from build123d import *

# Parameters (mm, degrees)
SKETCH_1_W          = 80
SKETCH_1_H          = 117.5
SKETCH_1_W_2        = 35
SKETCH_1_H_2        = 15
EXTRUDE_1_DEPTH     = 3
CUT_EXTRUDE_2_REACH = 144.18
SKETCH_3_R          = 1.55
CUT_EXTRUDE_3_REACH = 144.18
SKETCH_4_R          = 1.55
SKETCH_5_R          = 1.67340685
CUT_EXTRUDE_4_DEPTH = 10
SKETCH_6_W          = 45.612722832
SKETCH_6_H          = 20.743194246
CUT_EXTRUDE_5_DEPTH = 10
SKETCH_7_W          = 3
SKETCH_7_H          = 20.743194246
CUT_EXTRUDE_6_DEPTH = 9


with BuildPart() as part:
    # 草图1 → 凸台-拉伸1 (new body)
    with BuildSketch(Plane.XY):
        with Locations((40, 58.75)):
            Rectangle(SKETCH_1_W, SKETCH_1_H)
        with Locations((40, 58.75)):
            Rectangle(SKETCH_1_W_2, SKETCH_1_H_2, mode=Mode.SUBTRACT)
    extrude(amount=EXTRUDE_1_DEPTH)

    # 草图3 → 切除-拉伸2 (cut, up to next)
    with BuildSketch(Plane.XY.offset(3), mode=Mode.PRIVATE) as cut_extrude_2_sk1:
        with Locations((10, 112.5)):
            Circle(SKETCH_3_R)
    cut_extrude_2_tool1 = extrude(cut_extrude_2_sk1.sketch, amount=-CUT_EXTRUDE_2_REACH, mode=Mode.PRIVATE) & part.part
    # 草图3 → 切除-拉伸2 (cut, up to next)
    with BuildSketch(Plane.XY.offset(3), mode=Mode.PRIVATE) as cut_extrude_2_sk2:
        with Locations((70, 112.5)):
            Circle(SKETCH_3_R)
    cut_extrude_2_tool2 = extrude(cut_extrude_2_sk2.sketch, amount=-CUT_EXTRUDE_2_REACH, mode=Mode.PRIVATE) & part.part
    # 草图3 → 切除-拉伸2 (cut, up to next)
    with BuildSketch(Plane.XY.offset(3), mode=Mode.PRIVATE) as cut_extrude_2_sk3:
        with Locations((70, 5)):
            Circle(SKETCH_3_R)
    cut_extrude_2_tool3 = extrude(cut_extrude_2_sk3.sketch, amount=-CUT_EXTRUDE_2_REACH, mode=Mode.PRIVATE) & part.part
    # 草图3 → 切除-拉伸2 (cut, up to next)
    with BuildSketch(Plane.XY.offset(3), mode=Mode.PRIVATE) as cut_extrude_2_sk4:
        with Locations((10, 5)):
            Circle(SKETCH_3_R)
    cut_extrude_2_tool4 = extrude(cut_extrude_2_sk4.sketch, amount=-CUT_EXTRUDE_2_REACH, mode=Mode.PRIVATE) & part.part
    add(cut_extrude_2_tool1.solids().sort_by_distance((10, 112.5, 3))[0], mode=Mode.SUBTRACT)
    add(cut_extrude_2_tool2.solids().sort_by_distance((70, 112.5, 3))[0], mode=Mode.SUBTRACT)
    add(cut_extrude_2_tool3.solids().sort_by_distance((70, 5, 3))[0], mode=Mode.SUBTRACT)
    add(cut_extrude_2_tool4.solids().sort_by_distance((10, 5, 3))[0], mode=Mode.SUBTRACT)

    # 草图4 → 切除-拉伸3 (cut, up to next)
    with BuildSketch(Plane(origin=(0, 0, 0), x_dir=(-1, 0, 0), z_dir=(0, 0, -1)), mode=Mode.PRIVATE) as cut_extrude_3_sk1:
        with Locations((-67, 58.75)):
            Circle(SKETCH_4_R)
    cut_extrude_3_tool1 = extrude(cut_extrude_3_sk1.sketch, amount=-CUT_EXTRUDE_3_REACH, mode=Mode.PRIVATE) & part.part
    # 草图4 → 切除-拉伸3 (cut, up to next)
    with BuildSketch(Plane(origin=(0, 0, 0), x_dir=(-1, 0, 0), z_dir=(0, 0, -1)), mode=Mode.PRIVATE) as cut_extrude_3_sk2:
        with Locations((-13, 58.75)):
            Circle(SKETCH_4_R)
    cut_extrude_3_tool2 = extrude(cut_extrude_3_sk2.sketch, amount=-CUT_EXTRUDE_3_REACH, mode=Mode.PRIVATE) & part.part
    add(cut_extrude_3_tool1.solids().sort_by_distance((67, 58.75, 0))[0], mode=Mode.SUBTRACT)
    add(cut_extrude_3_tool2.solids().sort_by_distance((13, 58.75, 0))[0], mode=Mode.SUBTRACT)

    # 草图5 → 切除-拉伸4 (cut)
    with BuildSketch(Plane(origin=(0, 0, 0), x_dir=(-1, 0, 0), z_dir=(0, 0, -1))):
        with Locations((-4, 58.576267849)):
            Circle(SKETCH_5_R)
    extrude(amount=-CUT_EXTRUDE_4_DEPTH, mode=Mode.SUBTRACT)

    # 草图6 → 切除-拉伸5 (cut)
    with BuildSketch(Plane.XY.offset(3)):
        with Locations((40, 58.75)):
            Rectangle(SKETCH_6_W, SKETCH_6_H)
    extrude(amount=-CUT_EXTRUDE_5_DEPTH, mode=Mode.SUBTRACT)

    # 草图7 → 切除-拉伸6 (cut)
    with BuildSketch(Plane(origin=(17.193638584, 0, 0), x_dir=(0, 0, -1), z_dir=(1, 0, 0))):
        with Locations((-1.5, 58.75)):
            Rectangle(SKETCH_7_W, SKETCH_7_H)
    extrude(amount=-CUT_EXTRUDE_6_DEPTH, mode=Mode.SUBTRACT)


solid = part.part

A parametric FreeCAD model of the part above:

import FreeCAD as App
import Part
import Sketcher
Q = App.Units.Quantity


def add_polygon(sketch, points):
    """Adds a closed chain of lines whose ends are joined by coincident constraints."""
    first, n = sketch.GeometryCount, len(points)
    for a, b in zip(points, points[1:] + points[:1]):
        sketch.addGeometry(Part.LineSegment(App.Vector(*a, 0), App.Vector(*b, 0)), False)
    for i in range(n):
        sketch.addConstraint(Sketcher.Constraint("Coincident", first + i, 2, first + (i + 1) % n, 1))

doc = App.newDocument("Part")
body = doc.addObject("PartDesign::Body", "Body")

sketch1 = body.newObject("Sketcher::SketchObject", "Sketch")
sketch1.AttachmentSupport = (doc.getObject("XY_Plane"), [""])
sketch1.MapMode = "FlatFace"
add_polygon(sketch1, [(0, 118), (0, 0), (80, 0), (80, 118)])
add_polygon(sketch1, [(58, 51), (22, 51), (22, 66), (58, 66)])
sketch1.addConstraint([
    Sketcher.Constraint("Vertical", 0),
    Sketcher.Constraint("Horizontal", 1),
    Sketcher.Constraint("Vertical", 2),
    Sketcher.Constraint("Horizontal", 3),
    Sketcher.Constraint("Horizontal", 4),
    Sketcher.Constraint("Vertical", 5),
    Sketcher.Constraint("Horizontal", 6),
    Sketcher.Constraint("Vertical", 7),
    Sketcher.Constraint("Coincident", 0, 2, -1, 1),
    Sketcher.Constraint("DistanceX", 1, 1, 1, 2, Q("80 mm")),
    Sketcher.Constraint("DistanceX", 4, 2, 4, 1, Q("35 mm")),
    Sketcher.Constraint("DistanceY", 5, 1, 5, 2, Q("15 mm")),
    Sketcher.Constraint("DistanceY", 0, 2, 0, 1, Q("117.5 mm")),
    Sketcher.Constraint("DistanceX", -1, 1, 4, 2, Q("22.5 mm")),
    Sketcher.Constraint("DistanceY", -1, 1, 4, 2, Q("51.25 mm")),
])
pad1 = body.newObject("PartDesign::Pad", "Pad")
pad1.Profile = sketch1
pad1.Length = 3

sketch2 = body.newObject("Sketcher::SketchObject", "Sketch001")
sketch2.AttachmentSupport = (doc.getObject("XY_Plane"), [""])
sketch2.MapMode = "FlatFace"
sketch2.AttachmentOffset = App.Placement(App.Vector(0, 0, 3), App.Rotation())
sketch2.addGeometry(Part.Circle(App.Vector(10, 112.5, 0), App.Vector(0, 0, 1), 1.6), False)
sketch2.addConstraint([
    Sketcher.Constraint("Diameter", 0, Q("3.1 mm")),
    Sketcher.Constraint("DistanceX", -1, 1, 0, 3, Q("10 mm")),
    Sketcher.Constraint("DistanceY", -1, 1, 0, 3, Q("112.5 mm")),
])
pocket1 = body.newObject("PartDesign::Pocket", "Pocket")
pocket1.Profile = sketch2
pocket1.Type = "UpToFirst"

sketch3 = body.newObject("Sketcher::SketchObject", "Sketch002")
sketch3.AttachmentSupport = (doc.getObject("XY_Plane"), [""])
sketch3.MapMode = "FlatFace"
sketch3.AttachmentOffset = App.Placement(App.Vector(0, 0, 3), App.Rotation())
sketch3.addGeometry(Part.Circle(App.Vector(70, 112.5, 0), App.Vector(0, 0, 1), 1.6), False)
sketch3.addConstraint([
    Sketcher.Constraint("Diameter", 0, Q("3.1 mm")),
    Sketcher.Constraint("DistanceX", -1, 1, 0, 3, Q("70 mm")),
    Sketcher.Constraint("DistanceY", -1, 1, 0, 3, Q("112.5 mm")),
])
pocket2 = body.newObject("PartDesign::Pocket", "Pocket001")
pocket2.Profile = sketch3
pocket2.Type = "UpToFirst"

sketch4 = body.newObject("Sketcher::SketchObject", "Sketch003")
sketch4.AttachmentSupport = (doc.getObject("XY_Plane"), [""])
sketch4.MapMode = "FlatFace"
sketch4.AttachmentOffset = App.Placement(App.Vector(0, 0, 3), App.Rotation())
sketch4.addGeometry(Part.Circle(App.Vector(70, 5, 0), App.Vector(0, 0, 1), 1.6), False)
sketch4.addConstraint([
    Sketcher.Constraint("Diameter", 0, Q("3.1 mm")),
    Sketcher.Constraint("DistanceX", -1, 1, 0, 3, Q("70 mm")),
    Sketcher.Constraint("DistanceY", -1, 1, 0, 3, Q("5 mm")),
])
pocket3 = body.newObject("PartDesign::Pocket", "Pocket002")
pocket3.Profile = sketch4
pocket3.Type = "UpToFirst"

sketch5 = body.newObject("Sketcher::SketchObject", "Sketch004")
sketch5.AttachmentSupport = (doc.getObject("XY_Plane"), [""])
sketch5.MapMode = "FlatFace"
sketch5.AttachmentOffset = App.Placement(App.Vector(0, 0, 3), App.Rotation())
sketch5.addGeometry(Part.Circle(App.Vector(10, 5, 0), App.Vector(0, 0, 1), 1.6), False)
sketch5.addConstraint([
    Sketcher.Constraint("Diameter", 0, Q("3.1 mm")),
    Sketcher.Constraint("DistanceX", -1, 1, 0, 3, Q("10 mm")),
    Sketcher.Constraint("DistanceY", -1, 1, 0, 3, Q("5 mm")),
])
pocket4 = body.newObject("PartDesign::Pocket", "Pocket003")
pocket4.Profile = sketch5
pocket4.Type = "UpToFirst"

sketch6 = body.newObject("Sketcher::SketchObject", "Sketch005")
sketch6.AttachmentSupport = (doc.getObject("XY_Plane"), [""])
sketch6.MapMode = "FlatFace"
sketch6.addGeometry(Part.Circle(App.Vector(67, 58.8, 0), App.Vector(0, 0, 1), 1.6), False)
sketch6.addConstraint([
    Sketcher.Constraint("Diameter", 0, Q("3.1 mm")),
    Sketcher.Constraint("DistanceX", -1, 1, 0, 3, Q("67 mm")),
    Sketcher.Constraint("DistanceY", -1, 1, 0, 3, Q("58.75 mm")),
])
pocket5 = body.newObject("PartDesign::Pocket", "Pocket004")
pocket5.Profile = sketch6
pocket5.Type = "UpToFirst"
pocket5.Reversed = True

sketch7 = body.newObject("Sketcher::SketchObject", "Sketch006")
sketch7.AttachmentSupport = (doc.getObject("XY_Plane"), [""])
sketch7.MapMode = "FlatFace"
sketch7.addGeometry(Part.Circle(App.Vector(13, 58.8, 0), App.Vector(0, 0, 1), 1.6), False)
sketch7.addConstraint([
    Sketcher.Constraint("Diameter", 0, Q("3.1 mm")),
    Sketcher.Constraint("DistanceX", -1, 1, 0, 3, Q("13 mm")),
    Sketcher.Constraint("DistanceY", -1, 1, 0, 3, Q("58.75 mm")),
])
pocket6 = body.newObject("PartDesign::Pocket", "Pocket005")
pocket6.Profile = sketch7
pocket6.Type = "UpToFirst"
pocket6.Reversed = True

sketch8 = body.newObject("Sketcher::SketchObject", "Sketch007")
sketch8.AttachmentSupport = (doc.getObject("XY_Plane"), [""])
sketch8.MapMode = "FlatFace"
sketch8.addGeometry(Part.Circle(App.Vector(4, 58.6, 0), App.Vector(0, 0, 1), 1.7), False)
sketch8.addConstraint([
    Sketcher.Constraint("DistanceX", -1, 1, 0, 3, Q("4 mm")),
    Sketcher.Constraint("Diameter", 0, Q("3.346814 mm")),
    Sketcher.Constraint("DistanceY", -1, 1, 0, 3, Q("58.576268 mm")),
])
pocket7 = body.newObject("PartDesign::Pocket", "Pocket006")
pocket7.Profile = sketch8
pocket7.Length = 10
pocket7.Reversed = True

sketch9 = body.newObject("Sketcher::SketchObject", "Sketch008")
sketch9.AttachmentSupport = (doc.getObject("XY_Plane"), [""])
sketch9.MapMode = "FlatFace"
sketch9.AttachmentOffset = App.Placement(App.Vector(0, 0, 3), App.Rotation())
add_polygon(sketch9, [(17, 69), (17, 48), (63, 48), (63, 69)])
sketch9.addConstraint([
    Sketcher.Constraint("Vertical", 0),
    Sketcher.Constraint("Horizontal", 1),
    Sketcher.Constraint("Vertical", 2),
    Sketcher.Constraint("Horizontal", 3),
    Sketcher.Constraint("DistanceX", 1, 1, 1, 2, Q("45.612723 mm")),
    Sketcher.Constraint("DistanceY", 0, 2, 0, 1, Q("20.743194 mm")),
    Sketcher.Constraint("DistanceX", -1, 1, 0, 2, Q("17.193639 mm")),
    Sketcher.Constraint("DistanceY", -1, 1, 0, 2, Q("48.378403 mm")),
])
pocket8 = body.newObject("PartDesign::Pocket", "Pocket007")
pocket8.Profile = sketch9
pocket8.Length = 10

sketch10 = body.newObject("Sketcher::SketchObject", "Sketch009")
sketch10.AttachmentSupport = (doc.getObject("YZ_Plane"), [""])
sketch10.MapMode = "FlatFace"
sketch10.AttachmentOffset = App.Placement(App.Vector(0, 0, 17.193639), App.Rotation())
add_polygon(sketch10, [(69.1, 3), (48.4, 3), (48.4, 0), (69.1, 0)])
sketch10.addConstraint([
    Sketcher.Constraint("Horizontal", 0),
    Sketcher.Constraint("Vertical", 1),
    Sketcher.Constraint("Horizontal", 2),
    Sketcher.Constraint("Vertical", 3),
    Sketcher.Constraint("PointOnObject", 1, 2, -1),
    Sketcher.Constraint("DistanceY", 1, 2, 1, 1, Q("3 mm")),
    Sketcher.Constraint("DistanceX", 0, 2, 0, 1, Q("20.743194 mm")),
    Sketcher.Constraint("DistanceX", -1, 1, 0, 2, Q("48.378403 mm")),
])
pocket9 = body.newObject("PartDesign::Pocket", "Pocket008")
pocket9.Profile = sketch10
pocket9.Length = 9

doc.recompute()
